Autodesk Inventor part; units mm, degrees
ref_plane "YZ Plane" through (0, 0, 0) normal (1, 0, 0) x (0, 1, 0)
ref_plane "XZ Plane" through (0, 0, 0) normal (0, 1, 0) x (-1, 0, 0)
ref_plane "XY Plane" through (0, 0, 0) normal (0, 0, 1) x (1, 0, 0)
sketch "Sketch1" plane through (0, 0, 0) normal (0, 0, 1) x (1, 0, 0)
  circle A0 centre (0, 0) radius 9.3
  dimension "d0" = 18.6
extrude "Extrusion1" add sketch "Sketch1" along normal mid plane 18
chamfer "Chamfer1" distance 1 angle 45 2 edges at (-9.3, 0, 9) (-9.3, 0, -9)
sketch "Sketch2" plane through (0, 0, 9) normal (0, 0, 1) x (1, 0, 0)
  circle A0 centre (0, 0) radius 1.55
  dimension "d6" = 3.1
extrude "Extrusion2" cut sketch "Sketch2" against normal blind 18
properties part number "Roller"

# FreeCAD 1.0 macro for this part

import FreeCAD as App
import Part
import Sketcher
Q = App.Units.Quantity


def edges_at(feature, points):
    """Names of the edges that pass closest to the given points."""
    edges = feature.Shape.Edges
    near = lambda p: min(range(len(edges)), key=lambda i: edges[i].distToShape(Part.Vertex(*p))[0])
    return sorted({f"Edge{near(p) + 1}" for p in points})

doc = App.newDocument("Part")
body = doc.addObject("PartDesign::Body", "Body")

# Sketch on XY plane
sketch1 = body.newObject("Sketcher::SketchObject", "Sketch")
sketch1.AttachmentSupport = (doc.getObject("XY_Plane"), [""])
sketch1.MapMode = "FlatFace"
sketch1.addGeometry(Part.Circle(App.Vector(0, 0, 0), App.Vector(0, 0, 1), 9), False)
sketch1.addConstraint([
    Sketcher.Constraint("Coincident", 0, 3, -1, 1),
    Sketcher.Constraint("Diameter", 0, Q("18.6 mm")),
])
pad1 = body.newObject("PartDesign::Pad", "Pad")
pad1.Profile = sketch1
pad1.Length = 18
pad1.Midplane = True
doc.recompute()

chamfer = body.newObject("PartDesign::Chamfer", "Chamfer")
chamfer.Base = (pad1, edges_at(pad1, [(-9.3, 0, 9), (-9.3, 0, -9)]))
chamfer.Size = 1

# Sketch on XY plane
sketch2 = body.newObject("Sketcher::SketchObject", "Sketch001")
sketch2.AttachmentSupport = (doc.getObject("XY_Plane"), [""])
sketch2.MapMode = "FlatFace"
sketch2.AttachmentOffset = App.Placement(App.Vector(0, 0, 9), App.Rotation())
sketch2.addGeometry(Part.Circle(App.Vector(0, 0, 0), App.Vector(0, 0, 1), 1.6), False)
sketch2.addConstraint([
    Sketcher.Constraint("Coincident", 0, 3, -1, 1),
    Sketcher.Constraint("Diameter", 0, Q("3.1 mm")),
])
pocket1 = body.newObject("PartDesign::Pocket", "Pocket")
pocket1.Profile = sketch2
pocket1.Length = 18

doc.recompute()
